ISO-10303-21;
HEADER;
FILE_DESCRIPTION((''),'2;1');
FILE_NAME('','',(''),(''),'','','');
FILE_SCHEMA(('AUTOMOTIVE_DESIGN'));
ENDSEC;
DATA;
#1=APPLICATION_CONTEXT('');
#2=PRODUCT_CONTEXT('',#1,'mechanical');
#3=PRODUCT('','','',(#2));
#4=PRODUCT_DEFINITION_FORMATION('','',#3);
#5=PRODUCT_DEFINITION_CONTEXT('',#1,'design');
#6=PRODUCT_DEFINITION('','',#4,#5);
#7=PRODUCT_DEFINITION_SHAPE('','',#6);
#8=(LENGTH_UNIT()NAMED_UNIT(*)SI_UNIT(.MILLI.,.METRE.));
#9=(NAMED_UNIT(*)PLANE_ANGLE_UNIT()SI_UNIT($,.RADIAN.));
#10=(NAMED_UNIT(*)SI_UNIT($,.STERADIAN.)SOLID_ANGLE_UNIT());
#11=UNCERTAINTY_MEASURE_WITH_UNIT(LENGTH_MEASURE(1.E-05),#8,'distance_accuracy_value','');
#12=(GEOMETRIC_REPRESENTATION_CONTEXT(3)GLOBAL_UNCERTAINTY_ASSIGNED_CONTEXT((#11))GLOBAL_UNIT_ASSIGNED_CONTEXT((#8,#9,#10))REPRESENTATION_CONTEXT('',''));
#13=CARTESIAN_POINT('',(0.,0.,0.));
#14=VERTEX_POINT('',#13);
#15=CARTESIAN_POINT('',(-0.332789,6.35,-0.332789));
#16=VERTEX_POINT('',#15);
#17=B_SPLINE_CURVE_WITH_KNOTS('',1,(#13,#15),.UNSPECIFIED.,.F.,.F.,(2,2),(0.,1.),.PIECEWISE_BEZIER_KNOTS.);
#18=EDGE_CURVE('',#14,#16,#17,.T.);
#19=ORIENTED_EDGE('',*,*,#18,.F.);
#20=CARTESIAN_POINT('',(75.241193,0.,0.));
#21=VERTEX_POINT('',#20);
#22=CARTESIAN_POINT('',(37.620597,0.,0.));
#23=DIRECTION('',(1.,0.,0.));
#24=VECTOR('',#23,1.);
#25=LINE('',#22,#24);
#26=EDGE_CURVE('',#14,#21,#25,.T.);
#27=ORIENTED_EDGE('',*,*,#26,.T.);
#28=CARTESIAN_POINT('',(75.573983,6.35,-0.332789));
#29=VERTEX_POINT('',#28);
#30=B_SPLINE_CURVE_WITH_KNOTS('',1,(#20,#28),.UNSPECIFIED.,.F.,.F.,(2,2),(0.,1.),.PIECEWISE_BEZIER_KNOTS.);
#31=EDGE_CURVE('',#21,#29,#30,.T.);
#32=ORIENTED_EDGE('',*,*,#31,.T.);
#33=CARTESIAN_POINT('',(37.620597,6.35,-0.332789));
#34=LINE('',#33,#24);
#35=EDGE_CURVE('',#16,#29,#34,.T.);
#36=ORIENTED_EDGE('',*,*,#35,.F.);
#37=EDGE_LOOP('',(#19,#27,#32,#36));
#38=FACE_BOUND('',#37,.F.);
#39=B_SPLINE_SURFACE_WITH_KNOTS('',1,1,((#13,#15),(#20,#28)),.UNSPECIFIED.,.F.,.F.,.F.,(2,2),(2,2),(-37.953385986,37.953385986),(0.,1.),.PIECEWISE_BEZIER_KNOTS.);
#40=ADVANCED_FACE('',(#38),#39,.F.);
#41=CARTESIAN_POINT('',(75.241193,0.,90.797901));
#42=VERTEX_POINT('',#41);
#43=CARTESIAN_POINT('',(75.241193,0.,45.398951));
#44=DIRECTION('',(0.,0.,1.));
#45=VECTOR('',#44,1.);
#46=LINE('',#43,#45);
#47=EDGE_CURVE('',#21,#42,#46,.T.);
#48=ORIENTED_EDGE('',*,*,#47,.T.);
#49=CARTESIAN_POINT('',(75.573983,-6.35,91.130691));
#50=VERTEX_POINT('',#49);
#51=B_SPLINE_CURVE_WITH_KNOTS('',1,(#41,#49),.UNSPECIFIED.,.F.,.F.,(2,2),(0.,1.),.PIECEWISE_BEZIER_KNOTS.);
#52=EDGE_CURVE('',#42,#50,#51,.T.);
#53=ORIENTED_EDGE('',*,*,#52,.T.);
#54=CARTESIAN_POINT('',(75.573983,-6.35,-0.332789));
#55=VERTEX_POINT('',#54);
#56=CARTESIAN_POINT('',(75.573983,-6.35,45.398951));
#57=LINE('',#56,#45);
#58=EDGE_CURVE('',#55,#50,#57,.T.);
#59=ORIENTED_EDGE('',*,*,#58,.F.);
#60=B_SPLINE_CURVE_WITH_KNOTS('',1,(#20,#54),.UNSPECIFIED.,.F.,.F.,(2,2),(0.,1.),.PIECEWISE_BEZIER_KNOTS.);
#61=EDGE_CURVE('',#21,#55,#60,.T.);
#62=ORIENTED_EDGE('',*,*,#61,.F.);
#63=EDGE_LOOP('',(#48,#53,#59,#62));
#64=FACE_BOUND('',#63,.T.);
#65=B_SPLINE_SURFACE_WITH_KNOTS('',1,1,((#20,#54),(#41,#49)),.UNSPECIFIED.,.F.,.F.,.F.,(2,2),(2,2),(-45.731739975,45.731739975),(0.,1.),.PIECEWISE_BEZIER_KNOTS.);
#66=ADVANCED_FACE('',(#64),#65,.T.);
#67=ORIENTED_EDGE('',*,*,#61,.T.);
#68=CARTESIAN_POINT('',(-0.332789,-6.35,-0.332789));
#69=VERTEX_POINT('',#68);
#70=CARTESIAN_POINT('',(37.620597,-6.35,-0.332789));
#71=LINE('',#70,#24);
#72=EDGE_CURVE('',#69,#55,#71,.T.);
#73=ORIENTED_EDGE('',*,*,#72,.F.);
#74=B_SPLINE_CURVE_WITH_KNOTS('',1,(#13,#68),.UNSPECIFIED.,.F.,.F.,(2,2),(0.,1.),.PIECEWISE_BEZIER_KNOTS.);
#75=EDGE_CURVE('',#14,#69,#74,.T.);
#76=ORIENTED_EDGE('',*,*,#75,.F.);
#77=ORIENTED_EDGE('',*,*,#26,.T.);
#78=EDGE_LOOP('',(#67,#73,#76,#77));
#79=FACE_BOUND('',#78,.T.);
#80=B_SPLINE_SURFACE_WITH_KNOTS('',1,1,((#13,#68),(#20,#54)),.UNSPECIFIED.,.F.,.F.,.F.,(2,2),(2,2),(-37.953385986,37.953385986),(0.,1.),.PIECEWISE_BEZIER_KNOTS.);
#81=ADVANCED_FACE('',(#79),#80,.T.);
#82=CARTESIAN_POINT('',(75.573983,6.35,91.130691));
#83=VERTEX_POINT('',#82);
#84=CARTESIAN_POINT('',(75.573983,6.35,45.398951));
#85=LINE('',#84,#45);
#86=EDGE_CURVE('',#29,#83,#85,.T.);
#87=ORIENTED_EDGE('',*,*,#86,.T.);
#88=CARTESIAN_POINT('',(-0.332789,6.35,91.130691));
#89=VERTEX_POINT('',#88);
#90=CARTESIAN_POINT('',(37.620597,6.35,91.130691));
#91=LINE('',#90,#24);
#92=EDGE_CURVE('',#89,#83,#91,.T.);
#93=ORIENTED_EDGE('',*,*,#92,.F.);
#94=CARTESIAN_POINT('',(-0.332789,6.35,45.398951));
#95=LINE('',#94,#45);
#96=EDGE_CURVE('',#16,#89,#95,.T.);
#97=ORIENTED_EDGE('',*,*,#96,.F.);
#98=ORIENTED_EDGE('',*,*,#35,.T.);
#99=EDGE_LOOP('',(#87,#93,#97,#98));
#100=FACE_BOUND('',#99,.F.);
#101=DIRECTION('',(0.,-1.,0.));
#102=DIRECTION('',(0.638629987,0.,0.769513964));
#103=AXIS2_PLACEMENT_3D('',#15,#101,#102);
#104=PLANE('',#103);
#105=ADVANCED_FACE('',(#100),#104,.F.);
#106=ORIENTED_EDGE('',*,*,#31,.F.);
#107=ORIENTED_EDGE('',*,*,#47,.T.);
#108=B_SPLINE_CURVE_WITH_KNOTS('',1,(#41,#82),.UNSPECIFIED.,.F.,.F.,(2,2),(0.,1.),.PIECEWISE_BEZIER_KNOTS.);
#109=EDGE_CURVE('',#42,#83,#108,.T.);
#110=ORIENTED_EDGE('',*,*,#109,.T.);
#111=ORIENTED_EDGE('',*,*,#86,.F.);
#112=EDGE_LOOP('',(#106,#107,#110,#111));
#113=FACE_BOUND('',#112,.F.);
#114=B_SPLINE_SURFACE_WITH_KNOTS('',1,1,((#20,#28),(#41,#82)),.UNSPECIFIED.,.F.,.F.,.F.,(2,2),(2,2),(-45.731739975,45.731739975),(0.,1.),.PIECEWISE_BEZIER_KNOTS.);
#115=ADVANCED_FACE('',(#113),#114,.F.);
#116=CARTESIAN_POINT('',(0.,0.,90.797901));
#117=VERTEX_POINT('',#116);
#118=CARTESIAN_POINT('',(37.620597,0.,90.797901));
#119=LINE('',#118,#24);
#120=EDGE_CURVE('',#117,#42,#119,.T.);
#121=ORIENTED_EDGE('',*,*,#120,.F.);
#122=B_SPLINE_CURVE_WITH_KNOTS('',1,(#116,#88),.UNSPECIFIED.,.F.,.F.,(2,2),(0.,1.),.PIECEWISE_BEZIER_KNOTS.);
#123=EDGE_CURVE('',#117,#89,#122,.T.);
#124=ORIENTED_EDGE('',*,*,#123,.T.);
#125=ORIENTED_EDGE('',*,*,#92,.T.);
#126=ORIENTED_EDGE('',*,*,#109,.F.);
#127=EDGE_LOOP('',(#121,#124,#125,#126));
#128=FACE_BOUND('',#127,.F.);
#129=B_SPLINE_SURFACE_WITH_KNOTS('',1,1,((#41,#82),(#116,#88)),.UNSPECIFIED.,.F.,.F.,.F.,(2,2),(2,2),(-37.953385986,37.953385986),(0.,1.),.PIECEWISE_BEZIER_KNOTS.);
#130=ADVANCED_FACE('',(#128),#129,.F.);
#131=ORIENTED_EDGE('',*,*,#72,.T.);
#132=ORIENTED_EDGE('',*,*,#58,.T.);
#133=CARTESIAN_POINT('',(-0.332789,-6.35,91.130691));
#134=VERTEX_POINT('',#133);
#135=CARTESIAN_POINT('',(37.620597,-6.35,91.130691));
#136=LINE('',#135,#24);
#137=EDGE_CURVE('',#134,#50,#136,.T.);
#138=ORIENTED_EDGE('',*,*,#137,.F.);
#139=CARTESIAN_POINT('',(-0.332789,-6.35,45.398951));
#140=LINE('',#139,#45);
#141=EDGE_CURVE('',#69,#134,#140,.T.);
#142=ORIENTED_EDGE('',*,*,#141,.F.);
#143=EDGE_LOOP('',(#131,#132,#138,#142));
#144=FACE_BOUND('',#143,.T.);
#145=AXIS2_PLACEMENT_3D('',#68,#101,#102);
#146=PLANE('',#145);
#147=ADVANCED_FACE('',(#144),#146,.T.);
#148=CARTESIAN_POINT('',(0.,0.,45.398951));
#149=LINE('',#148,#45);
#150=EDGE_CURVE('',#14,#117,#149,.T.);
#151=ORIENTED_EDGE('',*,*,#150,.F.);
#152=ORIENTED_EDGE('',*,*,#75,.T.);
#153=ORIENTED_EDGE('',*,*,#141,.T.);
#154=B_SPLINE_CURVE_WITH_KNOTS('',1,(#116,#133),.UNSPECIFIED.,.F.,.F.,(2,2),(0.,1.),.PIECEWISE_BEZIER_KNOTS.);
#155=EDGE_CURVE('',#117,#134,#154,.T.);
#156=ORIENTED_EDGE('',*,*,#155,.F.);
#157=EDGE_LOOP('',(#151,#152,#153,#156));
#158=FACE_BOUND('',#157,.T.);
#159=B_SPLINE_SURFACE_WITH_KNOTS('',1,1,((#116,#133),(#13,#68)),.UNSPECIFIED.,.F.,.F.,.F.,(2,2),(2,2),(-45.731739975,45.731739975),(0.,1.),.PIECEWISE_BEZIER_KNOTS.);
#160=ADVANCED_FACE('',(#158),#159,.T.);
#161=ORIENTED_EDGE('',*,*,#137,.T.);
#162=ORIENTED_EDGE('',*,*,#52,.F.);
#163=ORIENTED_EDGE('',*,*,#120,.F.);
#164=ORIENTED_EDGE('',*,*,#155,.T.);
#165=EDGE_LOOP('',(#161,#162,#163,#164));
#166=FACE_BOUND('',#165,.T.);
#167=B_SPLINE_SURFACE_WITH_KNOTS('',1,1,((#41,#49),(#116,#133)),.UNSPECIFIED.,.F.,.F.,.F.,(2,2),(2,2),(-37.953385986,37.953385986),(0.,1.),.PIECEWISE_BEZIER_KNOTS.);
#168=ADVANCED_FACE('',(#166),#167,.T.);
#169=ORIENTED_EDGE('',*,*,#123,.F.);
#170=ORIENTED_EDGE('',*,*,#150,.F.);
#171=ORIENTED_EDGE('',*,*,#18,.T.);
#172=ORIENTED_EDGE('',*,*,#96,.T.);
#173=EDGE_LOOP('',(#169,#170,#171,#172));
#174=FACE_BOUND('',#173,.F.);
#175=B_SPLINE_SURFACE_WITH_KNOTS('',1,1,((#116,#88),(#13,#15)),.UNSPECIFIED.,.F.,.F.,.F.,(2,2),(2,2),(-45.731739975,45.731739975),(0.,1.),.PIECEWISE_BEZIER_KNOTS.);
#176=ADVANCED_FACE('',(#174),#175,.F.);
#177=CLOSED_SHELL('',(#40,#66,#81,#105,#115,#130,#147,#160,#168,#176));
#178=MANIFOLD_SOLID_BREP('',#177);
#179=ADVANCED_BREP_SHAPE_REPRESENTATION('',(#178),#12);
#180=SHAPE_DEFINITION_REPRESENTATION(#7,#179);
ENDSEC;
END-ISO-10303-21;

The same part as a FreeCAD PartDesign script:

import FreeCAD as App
import Part
import Sketcher
from FreeCAD import Vector
Q = App.Units.Quantity

doc = App.newDocument("Part")
body = doc.addObject("PartDesign::Body", "Body")

sketch1 = doc.addObject("Sketcher::SketchObject", "Sketch")
body.addObject(sketch1)
sketch1.AttachmentSupport = (doc.XZ_Plane, [""])
sketch1.MapMode = "FlatFace"
sketch1.addGeometry(Part.LineSegment(Vector(0, 91, 0), Vector(0, 0, 0)), False)
sketch1.addGeometry(Part.LineSegment(Vector(0, 0, 0), Vector(75, 0, 0)), False)
sketch1.addGeometry(Part.LineSegment(Vector(75, 0, 0), Vector(75, 91, 0)), False)
sketch1.addGeometry(Part.LineSegment(Vector(75, 91, 0), Vector(0, 91, 0)), False)
sketch1.addConstraint(Sketcher.Constraint("Coincident", 0, 2, 1, 1))
sketch1.addConstraint(Sketcher.Constraint("Coincident", 1, 2, 2, 1))
sketch1.addConstraint(Sketcher.Constraint("Coincident", 2, 2, 3, 1))
sketch1.addConstraint(Sketcher.Constraint("Coincident", 3, 2, 0, 1))
sketch1.addConstraint(Sketcher.Constraint("Vertical", 0))
sketch1.addConstraint(Sketcher.Constraint("Horizontal", 1))
sketch1.addConstraint(Sketcher.Constraint("Vertical", 2))
sketch1.addConstraint(Sketcher.Constraint("Horizontal", 3))
sketch1.addConstraint(Sketcher.Constraint("Coincident", 0, 2, -1, 1))
sketch1.addConstraint(Sketcher.Constraint("DistanceY", 0, 2, 0, 1, Q("90.797901 mm")))
sketch1.addConstraint(Sketcher.Constraint("DistanceX", 1, 1, 1, 2, Q("75.241193 mm")))
pad1 = doc.addObject("PartDesign::Pad", "Pad")
body.addObject(pad1)
pad1.Profile = sketch1
pad1.Length = Q("0.5 in")
pad1.Midplane = True
pad1.TaperAngle = 3

doc.recompute()
